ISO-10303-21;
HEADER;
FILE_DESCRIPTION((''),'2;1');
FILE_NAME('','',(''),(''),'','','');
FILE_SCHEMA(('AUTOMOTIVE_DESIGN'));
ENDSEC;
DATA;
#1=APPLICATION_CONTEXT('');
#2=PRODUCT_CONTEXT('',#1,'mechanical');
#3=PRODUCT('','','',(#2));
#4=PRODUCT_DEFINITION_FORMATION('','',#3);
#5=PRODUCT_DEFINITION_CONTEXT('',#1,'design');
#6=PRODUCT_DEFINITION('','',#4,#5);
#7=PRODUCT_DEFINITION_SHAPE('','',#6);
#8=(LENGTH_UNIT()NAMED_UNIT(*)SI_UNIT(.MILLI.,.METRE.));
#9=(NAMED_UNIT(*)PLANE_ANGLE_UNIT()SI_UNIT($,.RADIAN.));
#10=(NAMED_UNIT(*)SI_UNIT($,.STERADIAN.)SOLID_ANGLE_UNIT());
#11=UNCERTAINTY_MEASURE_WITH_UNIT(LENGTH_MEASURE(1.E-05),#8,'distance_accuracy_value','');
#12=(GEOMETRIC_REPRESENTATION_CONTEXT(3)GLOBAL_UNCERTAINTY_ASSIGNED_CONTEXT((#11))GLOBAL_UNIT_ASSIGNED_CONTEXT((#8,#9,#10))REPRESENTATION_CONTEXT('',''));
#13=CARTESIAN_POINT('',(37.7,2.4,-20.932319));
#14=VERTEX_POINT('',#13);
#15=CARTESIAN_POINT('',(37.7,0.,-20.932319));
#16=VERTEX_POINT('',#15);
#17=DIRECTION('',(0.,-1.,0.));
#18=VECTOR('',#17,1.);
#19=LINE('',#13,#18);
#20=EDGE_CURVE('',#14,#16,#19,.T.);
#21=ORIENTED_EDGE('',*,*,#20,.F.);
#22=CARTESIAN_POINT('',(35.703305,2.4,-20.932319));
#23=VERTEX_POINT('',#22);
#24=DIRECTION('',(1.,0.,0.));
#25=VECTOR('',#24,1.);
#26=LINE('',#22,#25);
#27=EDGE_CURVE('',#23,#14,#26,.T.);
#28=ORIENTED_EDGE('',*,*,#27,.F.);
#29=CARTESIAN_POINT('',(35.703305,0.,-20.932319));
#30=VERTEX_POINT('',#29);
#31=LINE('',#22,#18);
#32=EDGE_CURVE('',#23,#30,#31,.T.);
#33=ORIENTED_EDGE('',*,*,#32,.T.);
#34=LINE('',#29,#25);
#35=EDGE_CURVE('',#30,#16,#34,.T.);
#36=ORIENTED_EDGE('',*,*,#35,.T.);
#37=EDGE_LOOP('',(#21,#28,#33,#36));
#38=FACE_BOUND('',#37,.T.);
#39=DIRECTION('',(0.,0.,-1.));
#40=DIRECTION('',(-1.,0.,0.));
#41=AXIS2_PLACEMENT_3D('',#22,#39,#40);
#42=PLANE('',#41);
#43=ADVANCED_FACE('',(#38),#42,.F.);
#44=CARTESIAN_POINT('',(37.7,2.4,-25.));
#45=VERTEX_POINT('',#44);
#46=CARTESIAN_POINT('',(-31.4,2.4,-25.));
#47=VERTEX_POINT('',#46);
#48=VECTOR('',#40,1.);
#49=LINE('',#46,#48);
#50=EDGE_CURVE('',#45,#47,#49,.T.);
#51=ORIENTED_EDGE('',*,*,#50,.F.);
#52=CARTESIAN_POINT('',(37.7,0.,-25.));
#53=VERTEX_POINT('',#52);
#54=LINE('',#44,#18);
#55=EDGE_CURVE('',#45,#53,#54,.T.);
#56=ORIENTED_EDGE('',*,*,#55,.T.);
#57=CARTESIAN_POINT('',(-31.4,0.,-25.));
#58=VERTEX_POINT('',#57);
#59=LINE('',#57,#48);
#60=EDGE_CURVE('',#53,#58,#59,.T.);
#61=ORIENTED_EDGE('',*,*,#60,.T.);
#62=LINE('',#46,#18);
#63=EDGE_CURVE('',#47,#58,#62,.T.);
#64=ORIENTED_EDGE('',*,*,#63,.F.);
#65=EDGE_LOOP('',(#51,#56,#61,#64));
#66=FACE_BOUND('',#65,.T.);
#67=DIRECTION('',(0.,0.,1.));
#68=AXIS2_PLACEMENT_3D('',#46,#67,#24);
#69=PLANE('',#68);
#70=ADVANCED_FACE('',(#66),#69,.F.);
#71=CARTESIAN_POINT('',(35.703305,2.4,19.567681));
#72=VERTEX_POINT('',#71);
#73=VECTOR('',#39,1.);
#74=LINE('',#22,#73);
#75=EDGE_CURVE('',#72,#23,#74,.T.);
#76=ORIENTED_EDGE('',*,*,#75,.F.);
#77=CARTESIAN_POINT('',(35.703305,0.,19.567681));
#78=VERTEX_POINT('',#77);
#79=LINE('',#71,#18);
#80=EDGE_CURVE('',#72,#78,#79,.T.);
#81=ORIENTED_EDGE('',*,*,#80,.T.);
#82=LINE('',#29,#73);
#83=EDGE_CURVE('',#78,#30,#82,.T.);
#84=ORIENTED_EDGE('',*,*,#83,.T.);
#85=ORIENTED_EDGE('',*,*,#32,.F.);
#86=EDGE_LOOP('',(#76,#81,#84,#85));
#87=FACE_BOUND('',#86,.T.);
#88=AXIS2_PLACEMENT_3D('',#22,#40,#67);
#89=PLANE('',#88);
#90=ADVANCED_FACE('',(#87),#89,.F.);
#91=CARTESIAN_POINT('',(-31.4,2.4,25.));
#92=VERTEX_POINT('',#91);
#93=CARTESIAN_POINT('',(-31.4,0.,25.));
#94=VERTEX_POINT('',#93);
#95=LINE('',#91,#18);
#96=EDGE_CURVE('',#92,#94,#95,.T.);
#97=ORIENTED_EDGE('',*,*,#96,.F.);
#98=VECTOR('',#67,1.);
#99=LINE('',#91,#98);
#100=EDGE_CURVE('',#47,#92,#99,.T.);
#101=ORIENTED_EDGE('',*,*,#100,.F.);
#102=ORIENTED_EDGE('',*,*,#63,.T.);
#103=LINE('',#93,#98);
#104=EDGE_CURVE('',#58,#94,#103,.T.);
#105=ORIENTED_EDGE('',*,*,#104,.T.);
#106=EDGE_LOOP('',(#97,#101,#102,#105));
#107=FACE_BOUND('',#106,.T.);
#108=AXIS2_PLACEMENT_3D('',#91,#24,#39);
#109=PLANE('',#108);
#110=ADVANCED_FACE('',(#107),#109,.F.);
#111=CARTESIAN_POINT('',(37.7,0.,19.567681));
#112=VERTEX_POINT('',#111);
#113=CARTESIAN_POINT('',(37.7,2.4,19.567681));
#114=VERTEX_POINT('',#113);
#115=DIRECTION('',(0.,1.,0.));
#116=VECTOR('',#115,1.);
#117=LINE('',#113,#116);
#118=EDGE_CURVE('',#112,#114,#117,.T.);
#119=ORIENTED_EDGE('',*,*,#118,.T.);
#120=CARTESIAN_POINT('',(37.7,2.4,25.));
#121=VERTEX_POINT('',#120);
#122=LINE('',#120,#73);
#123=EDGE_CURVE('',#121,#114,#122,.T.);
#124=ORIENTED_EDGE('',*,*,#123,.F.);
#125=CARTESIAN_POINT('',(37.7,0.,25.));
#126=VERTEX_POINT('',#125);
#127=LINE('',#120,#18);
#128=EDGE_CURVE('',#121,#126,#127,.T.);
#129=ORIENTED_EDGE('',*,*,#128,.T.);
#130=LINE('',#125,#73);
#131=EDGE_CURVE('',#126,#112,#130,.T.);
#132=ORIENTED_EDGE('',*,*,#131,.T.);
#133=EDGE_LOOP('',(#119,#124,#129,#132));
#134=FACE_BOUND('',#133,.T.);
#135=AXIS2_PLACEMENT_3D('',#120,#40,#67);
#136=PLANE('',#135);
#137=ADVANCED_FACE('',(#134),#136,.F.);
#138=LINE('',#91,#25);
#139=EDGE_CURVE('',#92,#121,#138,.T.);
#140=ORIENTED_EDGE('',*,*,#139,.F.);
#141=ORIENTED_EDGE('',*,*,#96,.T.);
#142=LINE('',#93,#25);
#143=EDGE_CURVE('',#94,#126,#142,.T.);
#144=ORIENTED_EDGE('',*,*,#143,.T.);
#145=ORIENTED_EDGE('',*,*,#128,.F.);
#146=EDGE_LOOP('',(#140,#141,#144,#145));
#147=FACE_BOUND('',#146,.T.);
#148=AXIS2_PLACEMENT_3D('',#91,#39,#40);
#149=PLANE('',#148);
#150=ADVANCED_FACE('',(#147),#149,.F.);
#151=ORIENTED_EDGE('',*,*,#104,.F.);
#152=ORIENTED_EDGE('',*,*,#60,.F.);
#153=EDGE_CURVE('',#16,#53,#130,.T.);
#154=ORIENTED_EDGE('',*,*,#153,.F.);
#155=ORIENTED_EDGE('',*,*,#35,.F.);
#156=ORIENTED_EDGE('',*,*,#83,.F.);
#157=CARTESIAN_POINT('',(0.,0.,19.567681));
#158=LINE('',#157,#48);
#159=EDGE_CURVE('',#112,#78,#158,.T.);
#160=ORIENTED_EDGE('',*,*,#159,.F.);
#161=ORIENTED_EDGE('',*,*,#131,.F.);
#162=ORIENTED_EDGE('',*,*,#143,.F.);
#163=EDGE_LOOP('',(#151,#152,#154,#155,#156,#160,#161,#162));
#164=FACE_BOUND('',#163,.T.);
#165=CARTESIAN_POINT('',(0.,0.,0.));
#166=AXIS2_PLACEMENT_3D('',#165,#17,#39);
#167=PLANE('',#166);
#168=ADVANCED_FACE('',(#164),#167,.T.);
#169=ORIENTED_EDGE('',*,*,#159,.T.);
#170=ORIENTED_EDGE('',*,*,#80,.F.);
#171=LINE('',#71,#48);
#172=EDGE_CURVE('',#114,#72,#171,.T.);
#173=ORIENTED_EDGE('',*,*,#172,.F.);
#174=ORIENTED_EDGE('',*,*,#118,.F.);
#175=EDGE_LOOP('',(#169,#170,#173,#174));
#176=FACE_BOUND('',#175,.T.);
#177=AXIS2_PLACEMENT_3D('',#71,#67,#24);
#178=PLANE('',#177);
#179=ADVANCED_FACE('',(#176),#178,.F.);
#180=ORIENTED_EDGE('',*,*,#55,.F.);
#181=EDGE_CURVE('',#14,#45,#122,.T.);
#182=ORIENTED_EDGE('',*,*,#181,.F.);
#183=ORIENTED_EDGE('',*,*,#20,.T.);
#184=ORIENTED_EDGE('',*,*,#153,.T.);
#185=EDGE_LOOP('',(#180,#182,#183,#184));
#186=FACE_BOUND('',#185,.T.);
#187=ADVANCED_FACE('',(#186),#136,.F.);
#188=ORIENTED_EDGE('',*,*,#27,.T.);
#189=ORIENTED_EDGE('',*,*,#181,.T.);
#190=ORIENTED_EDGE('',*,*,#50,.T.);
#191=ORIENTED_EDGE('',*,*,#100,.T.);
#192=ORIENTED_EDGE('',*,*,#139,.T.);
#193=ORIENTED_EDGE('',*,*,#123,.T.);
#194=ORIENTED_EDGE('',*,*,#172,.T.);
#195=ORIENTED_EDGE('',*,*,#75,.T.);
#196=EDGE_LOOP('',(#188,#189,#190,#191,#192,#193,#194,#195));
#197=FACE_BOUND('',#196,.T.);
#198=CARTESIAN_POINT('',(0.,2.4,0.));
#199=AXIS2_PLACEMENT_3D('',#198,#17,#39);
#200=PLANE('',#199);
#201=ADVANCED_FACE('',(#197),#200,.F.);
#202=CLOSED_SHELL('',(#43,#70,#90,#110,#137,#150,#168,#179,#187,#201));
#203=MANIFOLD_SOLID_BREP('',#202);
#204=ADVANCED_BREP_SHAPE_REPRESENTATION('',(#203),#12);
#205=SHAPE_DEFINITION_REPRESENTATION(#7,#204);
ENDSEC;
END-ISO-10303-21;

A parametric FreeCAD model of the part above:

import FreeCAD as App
import Part
import Sketcher

doc = App.newDocument("Part")
params = doc.addObject("Spreadsheet::Sheet", "Params")
for row, (alias, value) in enumerate([
    ("sketch1_height", "50 mm"),
    ("sketch1_width", "69.1 mm"),
    ("pad1_length", "2.4 mm"),
    ("sketch2_height", "40.5 mm"),
    ("pocket1_length", "2.4 mm"),
], start=1):
    params.set(f"A{row}", alias)
    params.set(f"B{row}", "=" + value)
    params.setAlias(f"B{row}", alias)

body = doc.addObject("PartDesign::Body", "Body")

sketch1 = doc.addObject("Sketcher::SketchObject", "Sketch")
body.addObject(sketch1)
sketch1.AttachmentSupport = (doc.XZ_Plane, [""])
sketch1.MapMode = "FlatFace"
sketch1.addGeometry([
    Part.LineSegment(App.Vector(-31.4, -25, 0), App.Vector(-31.4, 25, 0)),
    Part.LineSegment(App.Vector(-31.4, 25, 0), App.Vector(37.7, 25, 0)),
    Part.LineSegment(App.Vector(37.7, 25, 0), App.Vector(37.7, -25, 0)),
    Part.LineSegment(App.Vector(37.7, -25, 0), App.Vector(-31.4, -25, 0)),
], False)
sketch1.addConstraint([
    Sketcher.Constraint("Coincident", 0, 2, 1, 1),
    Sketcher.Constraint("Coincident", 1, 2, 2, 1),
    Sketcher.Constraint("Coincident", 2, 2, 3, 1),
    Sketcher.Constraint("Coincident", 3, 2, 0, 1),
    Sketcher.Constraint("Vertical", 0),
    Sketcher.Constraint("Horizontal", 1),
    Sketcher.Constraint("Vertical", 2),
    Sketcher.Constraint("Horizontal", 3),
    Sketcher.Constraint("DistanceY", 0, 1, 0, 2, 50.0),
    Sketcher.Constraint("DistanceX", 1, 1, 1, 2, 69.1),
    Sketcher.Constraint("DistanceY", -1, 1, 0, 2, 25.0),
    Sketcher.Constraint("DistanceX", 0, 2, -1, 1, 31.4),
])
sketch1.setExpression("Constraints[8]", "Params.sketch1_height")
sketch1.setExpression("Constraints[9]", "Params.sketch1_width")
pad1 = doc.addObject("PartDesign::Pad", "Pad")
body.addObject(pad1)
pad1.Profile = sketch1
pad1.setExpression("Length", "Params.pad1_length")
pad1.Reversed = True

sketch2 = doc.addObject("Sketcher::SketchObject", "Sketch001")
body.addObject(sketch2)
sketch2.AttachmentSupport = (doc.XZ_Plane, [""])
sketch2.MapMode = "FlatFace"
sketch2.addGeometry([
    Part.LineSegment(App.Vector(35.703305, 19.567681, 0), App.Vector(35.703305, -20.932319, 0)),
    Part.LineSegment(App.Vector(35.703305, -20.932319, 0), App.Vector(39.696695, -20.932319, 0)),
    Part.LineSegment(App.Vector(39.696695, -20.932319, 0), App.Vector(39.696695, 19.567681, 0)),
    Part.LineSegment(App.Vector(39.696695, 19.567681, 0), App.Vector(35.703305, 19.567681, 0)),
], False)
sketch2.addConstraint([
    Sketcher.Constraint("Coincident", 0, 2, 1, 1),
    Sketcher.Constraint("Coincident", 1, 2, 2, 1),
    Sketcher.Constraint("Coincident", 2, 2, 3, 1),
    Sketcher.Constraint("Coincident", 3, 2, 0, 1),
    Sketcher.Constraint("Vertical", 0),
    Sketcher.Constraint("Horizontal", 1),
    Sketcher.Constraint("Vertical", 2),
    Sketcher.Constraint("Horizontal", 3),
    Sketcher.Constraint("DistanceY", 0, 2, 0, 1, 40.5),
    Sketcher.Constraint("DistanceX", 1, 1, 1, 2, 3.993389),
    Sketcher.Constraint("DistanceY", 0, 2, -1, 1, 20.932319),
    Sketcher.Constraint("DistanceX", -1, 1, 0, 2, 35.703305),
])
sketch2.setExpression("Constraints[8]", "Params.sketch2_height")
pocket1 = doc.addObject("PartDesign::Pocket", "Pocket")
body.addObject(pocket1)
pocket1.Profile = sketch2
pocket1.setExpression("Length", "Params.pocket1_length")

doc.recompute()
